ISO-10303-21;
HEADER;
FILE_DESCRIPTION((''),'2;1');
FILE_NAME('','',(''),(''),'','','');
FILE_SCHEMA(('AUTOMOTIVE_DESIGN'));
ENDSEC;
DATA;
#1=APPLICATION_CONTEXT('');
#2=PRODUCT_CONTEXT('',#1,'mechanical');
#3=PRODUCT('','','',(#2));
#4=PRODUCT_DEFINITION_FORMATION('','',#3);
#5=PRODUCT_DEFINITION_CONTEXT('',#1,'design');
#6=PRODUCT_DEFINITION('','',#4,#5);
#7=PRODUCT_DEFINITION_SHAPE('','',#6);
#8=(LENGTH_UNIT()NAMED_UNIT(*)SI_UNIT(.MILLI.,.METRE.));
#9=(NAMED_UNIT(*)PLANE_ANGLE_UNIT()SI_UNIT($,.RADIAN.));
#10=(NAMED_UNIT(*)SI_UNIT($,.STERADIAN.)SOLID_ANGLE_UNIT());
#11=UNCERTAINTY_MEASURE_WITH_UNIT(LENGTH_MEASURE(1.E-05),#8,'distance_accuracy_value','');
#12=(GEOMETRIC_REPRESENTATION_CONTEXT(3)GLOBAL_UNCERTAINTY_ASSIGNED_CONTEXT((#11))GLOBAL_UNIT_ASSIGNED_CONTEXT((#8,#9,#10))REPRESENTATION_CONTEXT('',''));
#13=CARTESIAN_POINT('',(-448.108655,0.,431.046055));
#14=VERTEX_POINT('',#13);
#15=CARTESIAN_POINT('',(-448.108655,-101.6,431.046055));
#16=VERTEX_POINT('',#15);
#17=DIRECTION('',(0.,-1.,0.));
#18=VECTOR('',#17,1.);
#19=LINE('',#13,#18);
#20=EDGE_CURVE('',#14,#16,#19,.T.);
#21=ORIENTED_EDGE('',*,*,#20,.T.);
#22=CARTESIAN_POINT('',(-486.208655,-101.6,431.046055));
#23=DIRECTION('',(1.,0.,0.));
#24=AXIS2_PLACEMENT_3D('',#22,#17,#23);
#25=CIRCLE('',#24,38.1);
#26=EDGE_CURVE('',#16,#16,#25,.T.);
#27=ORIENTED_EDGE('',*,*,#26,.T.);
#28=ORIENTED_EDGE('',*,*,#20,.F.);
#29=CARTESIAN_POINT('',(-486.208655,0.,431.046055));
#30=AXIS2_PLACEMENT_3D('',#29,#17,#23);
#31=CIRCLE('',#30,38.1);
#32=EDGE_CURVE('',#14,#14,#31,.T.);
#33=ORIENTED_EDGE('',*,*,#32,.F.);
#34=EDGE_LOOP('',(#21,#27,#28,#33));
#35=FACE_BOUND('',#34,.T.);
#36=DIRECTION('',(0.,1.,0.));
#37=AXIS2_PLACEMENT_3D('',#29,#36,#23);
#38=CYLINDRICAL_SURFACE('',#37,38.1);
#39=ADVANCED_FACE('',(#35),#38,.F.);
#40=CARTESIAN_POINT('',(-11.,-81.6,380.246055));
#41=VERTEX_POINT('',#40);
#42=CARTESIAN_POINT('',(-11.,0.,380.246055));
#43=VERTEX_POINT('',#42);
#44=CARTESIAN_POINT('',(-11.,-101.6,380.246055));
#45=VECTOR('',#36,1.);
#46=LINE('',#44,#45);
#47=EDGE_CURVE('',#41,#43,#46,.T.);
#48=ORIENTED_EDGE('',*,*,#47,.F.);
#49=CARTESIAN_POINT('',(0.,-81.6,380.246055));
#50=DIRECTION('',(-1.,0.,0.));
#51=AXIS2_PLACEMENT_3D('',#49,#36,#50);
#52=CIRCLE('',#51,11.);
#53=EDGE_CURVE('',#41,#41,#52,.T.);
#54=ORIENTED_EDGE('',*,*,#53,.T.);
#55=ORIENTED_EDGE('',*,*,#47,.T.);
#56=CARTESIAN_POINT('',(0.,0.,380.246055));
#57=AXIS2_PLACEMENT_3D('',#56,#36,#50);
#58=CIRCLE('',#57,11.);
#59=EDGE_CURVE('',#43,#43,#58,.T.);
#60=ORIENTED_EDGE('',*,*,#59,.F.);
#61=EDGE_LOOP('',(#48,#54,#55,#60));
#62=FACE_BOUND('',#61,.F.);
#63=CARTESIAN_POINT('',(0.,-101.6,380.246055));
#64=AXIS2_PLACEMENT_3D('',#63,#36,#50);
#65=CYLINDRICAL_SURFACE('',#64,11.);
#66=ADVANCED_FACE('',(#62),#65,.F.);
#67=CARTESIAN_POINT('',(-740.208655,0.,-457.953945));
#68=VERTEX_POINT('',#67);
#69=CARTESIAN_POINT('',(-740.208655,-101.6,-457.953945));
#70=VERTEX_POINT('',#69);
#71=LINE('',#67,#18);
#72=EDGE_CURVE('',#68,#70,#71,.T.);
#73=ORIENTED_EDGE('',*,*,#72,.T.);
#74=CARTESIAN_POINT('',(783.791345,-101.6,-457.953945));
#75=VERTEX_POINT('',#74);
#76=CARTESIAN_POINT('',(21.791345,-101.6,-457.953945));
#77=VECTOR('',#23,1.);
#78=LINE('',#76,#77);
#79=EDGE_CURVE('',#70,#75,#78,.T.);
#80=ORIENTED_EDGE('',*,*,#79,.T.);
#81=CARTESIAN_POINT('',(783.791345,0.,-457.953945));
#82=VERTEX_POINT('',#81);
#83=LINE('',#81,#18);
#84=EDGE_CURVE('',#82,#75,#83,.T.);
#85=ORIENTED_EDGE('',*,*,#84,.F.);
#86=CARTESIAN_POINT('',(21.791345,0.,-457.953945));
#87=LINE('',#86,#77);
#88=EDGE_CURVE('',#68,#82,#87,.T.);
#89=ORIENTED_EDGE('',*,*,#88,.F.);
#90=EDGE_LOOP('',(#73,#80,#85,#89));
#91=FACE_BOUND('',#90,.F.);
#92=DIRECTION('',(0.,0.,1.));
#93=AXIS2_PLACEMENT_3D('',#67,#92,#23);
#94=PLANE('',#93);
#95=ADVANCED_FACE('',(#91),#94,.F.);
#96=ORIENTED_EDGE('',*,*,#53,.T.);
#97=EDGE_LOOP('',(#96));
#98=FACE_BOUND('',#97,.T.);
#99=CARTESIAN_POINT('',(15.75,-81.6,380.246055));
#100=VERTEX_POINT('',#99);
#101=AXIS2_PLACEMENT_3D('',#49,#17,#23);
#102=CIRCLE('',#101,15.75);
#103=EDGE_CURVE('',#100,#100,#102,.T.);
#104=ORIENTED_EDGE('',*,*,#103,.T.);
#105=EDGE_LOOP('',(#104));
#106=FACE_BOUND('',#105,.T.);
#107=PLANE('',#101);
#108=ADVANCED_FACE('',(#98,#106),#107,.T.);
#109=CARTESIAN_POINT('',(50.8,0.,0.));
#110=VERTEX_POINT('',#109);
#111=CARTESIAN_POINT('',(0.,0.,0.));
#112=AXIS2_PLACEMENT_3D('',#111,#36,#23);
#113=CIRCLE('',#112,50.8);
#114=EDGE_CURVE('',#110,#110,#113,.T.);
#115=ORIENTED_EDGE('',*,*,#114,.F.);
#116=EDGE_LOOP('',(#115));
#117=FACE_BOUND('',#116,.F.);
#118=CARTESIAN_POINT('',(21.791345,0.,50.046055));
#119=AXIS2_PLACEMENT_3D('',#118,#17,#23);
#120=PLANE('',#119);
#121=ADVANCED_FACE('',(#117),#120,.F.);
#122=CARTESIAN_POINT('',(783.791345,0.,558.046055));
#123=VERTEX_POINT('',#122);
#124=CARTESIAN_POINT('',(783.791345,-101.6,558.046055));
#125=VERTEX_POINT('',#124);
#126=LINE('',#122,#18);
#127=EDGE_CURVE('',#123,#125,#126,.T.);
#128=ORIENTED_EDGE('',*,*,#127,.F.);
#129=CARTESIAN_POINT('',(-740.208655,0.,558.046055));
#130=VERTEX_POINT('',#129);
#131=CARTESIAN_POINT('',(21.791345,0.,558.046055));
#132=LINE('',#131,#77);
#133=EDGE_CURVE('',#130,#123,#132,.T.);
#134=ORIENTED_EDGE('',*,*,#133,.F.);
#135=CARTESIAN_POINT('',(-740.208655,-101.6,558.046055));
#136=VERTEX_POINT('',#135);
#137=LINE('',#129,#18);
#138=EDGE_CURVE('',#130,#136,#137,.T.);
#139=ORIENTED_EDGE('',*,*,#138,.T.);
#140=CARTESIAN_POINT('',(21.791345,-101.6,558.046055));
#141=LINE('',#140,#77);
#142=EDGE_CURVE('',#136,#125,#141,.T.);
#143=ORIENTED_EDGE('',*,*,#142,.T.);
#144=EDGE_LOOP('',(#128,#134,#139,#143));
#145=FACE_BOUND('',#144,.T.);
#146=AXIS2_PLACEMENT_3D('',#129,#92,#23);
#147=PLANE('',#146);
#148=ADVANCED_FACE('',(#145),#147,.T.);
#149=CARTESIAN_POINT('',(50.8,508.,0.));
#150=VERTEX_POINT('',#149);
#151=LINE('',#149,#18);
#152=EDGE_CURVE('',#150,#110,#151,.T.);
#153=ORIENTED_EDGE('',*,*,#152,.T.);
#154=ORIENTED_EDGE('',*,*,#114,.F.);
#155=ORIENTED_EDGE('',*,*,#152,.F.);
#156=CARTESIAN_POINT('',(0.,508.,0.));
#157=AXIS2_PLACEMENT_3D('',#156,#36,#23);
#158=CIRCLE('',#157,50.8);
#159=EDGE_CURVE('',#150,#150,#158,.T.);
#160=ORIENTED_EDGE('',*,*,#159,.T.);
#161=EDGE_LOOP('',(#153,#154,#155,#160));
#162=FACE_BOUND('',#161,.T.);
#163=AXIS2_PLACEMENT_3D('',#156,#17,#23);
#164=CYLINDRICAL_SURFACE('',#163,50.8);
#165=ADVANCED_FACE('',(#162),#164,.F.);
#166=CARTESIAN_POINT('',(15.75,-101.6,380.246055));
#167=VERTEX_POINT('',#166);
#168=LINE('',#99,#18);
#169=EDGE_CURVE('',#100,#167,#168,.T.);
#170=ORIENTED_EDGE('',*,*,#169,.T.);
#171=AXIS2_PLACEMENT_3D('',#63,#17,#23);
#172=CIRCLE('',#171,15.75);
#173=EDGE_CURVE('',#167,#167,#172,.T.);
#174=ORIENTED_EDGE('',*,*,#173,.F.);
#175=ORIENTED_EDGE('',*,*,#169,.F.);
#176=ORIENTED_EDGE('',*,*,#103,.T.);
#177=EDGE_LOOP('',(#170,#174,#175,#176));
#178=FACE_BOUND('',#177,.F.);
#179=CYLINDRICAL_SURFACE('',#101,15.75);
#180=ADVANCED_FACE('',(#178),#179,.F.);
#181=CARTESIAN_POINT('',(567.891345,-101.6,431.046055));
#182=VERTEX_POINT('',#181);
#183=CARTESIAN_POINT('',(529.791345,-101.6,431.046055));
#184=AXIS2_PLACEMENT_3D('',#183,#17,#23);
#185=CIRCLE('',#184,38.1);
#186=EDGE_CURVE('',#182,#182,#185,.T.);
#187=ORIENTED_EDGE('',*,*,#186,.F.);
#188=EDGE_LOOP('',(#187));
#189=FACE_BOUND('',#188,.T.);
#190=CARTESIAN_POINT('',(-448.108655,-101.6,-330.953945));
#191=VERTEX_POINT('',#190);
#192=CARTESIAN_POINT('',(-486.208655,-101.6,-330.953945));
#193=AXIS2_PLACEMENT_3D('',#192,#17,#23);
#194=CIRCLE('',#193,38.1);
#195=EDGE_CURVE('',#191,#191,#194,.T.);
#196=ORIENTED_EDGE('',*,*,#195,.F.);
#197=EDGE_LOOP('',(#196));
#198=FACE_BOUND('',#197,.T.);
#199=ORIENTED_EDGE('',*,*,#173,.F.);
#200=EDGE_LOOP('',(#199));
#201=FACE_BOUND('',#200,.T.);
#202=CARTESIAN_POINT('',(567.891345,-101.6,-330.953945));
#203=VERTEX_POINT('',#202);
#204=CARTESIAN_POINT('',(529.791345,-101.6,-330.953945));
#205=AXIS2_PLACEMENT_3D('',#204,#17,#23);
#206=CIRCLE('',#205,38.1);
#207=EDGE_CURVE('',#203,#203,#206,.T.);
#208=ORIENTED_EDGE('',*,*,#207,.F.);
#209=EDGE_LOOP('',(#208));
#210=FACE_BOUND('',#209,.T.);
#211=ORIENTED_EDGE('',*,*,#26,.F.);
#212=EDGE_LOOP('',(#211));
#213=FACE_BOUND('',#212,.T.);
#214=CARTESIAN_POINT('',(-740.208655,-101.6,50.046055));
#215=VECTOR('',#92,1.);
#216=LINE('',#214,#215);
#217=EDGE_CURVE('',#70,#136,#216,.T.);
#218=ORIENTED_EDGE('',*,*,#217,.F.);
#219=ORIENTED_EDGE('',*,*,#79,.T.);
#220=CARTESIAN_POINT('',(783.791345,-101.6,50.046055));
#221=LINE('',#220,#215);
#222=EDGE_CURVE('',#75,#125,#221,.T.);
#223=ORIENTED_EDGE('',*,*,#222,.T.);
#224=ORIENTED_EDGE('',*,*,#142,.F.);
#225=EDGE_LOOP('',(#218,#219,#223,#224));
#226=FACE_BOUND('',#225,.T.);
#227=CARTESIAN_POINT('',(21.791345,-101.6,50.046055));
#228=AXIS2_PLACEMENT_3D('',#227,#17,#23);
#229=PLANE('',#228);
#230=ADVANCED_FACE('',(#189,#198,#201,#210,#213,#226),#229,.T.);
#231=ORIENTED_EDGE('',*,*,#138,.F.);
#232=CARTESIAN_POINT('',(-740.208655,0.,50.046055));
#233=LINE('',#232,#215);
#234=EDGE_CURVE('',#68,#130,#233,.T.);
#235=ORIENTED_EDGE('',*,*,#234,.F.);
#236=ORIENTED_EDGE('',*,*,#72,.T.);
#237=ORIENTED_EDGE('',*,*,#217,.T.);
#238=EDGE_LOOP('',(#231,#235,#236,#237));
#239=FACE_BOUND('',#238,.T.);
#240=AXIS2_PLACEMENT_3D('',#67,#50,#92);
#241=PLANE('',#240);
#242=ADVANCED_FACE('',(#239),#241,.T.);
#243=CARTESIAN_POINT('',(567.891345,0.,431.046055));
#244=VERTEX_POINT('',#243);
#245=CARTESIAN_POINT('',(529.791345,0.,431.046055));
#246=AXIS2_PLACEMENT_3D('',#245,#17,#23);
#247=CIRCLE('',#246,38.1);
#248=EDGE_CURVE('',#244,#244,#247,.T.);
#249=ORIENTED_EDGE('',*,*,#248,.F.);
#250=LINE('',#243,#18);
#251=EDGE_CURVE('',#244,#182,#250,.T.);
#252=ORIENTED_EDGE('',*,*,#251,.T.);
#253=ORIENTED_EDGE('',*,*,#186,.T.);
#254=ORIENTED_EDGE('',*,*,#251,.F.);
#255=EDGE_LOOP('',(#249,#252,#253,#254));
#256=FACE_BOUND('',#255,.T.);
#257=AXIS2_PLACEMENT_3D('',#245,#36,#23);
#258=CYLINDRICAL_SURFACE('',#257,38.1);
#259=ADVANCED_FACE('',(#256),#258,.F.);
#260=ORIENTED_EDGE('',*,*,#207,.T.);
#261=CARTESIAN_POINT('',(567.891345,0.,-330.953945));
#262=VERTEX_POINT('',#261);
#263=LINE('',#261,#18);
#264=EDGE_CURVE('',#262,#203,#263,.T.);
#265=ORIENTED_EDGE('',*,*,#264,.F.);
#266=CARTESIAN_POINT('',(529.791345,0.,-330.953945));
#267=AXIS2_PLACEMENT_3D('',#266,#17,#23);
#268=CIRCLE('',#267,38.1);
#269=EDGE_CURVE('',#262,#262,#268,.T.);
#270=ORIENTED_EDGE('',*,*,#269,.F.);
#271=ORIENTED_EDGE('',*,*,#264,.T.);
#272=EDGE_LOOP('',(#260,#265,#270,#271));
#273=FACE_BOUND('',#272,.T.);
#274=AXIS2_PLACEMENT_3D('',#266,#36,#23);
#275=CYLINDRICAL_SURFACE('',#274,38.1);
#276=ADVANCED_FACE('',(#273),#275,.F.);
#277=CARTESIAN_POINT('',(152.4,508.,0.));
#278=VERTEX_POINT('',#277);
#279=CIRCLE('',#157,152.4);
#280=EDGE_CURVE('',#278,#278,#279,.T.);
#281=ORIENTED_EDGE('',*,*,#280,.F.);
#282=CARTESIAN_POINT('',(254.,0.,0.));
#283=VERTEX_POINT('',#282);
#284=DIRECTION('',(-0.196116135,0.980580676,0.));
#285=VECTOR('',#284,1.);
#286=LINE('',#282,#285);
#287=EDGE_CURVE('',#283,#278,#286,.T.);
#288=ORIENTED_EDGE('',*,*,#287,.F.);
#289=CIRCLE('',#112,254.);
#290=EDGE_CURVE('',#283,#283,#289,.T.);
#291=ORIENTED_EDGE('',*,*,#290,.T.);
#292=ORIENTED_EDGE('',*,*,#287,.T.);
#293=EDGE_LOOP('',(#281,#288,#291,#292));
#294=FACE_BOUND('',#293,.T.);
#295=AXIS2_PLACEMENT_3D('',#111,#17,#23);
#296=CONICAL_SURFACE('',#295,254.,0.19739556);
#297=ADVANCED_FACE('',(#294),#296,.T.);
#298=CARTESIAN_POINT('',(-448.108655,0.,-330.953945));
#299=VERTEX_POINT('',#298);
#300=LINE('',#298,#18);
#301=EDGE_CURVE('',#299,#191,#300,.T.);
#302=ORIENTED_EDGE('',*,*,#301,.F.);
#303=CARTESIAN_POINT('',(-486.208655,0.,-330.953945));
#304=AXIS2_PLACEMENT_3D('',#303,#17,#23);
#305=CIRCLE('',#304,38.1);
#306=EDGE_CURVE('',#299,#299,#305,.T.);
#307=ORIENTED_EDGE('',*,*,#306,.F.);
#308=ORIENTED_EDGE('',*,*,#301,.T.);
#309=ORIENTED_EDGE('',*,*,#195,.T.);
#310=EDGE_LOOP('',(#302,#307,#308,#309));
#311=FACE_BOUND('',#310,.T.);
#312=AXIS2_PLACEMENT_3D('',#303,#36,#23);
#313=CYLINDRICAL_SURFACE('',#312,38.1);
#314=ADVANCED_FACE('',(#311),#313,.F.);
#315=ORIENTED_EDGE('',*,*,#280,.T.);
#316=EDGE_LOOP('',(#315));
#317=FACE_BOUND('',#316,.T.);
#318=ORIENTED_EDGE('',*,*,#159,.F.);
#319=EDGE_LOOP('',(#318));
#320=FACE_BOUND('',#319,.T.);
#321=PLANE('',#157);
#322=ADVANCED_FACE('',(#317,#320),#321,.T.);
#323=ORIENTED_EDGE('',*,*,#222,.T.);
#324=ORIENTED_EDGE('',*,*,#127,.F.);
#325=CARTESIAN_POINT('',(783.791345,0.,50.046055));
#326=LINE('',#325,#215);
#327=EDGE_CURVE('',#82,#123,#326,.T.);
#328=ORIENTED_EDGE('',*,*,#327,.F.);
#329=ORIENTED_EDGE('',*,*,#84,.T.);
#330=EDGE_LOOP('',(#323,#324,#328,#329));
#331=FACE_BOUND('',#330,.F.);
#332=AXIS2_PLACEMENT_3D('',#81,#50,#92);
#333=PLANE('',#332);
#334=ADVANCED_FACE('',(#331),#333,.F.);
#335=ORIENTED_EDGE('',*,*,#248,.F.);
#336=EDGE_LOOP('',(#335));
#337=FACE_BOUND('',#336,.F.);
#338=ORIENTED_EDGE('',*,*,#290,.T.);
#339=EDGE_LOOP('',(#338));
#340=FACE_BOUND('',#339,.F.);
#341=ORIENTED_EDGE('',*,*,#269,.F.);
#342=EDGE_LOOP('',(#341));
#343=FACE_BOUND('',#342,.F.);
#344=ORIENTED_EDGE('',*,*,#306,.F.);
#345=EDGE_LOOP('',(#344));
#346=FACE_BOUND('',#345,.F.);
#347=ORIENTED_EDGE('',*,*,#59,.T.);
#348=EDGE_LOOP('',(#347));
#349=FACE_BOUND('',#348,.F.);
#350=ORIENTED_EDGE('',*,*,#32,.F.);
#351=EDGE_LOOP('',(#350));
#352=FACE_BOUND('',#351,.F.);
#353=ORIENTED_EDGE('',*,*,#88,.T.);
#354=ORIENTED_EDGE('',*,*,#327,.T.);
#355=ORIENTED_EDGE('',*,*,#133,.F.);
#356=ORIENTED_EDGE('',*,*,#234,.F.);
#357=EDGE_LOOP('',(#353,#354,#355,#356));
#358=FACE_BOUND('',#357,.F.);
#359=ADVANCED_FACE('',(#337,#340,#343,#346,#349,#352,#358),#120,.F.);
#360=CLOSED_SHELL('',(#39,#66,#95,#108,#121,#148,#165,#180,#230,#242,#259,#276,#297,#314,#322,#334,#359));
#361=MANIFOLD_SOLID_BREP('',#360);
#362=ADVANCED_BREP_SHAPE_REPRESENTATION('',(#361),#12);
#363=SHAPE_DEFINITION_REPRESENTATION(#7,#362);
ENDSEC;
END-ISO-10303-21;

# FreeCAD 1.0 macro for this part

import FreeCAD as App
import Part
import Sketcher
from FreeCAD import Vector
Q = App.Units.Quantity

doc = App.newDocument("Part")
body = doc.addObject("PartDesign::Body", "Body")

# Sketch on XZ plane
sketch1 = doc.addObject("Sketcher::SketchObject", "Sketch")
body.addObject(sketch1)
sketch1.AttachmentSupport = (doc.XZ_Plane, [""])
sketch1.MapMode = "FlatFace"
sketch1.addGeometry([
    Part.LineSegment(Vector(-740, 558, 0), Vector(-740, -458, 0)),  # 0
    Part.LineSegment(Vector(-740, -458, 0), Vector(784, -458, 0)),  # 1
    Part.LineSegment(Vector(784, -458, 0), Vector(784, 558, 0)),  # 2
    Part.LineSegment(Vector(784, 558, 0), Vector(-740, 558, 0)),  # 3
    Part.Circle(Vector(-486, -331, 0), Vector(0, 0, 1), 38),  # 4
    Part.Circle(Vector(530, -331, 0), Vector(0, 0, 1), 38),  # 5
    Part.Circle(Vector(-486, 431, 0), Vector(0, 0, 1), 38),  # 6
    Part.Circle(Vector(530, 431, 0), Vector(0, 0, 1), 38),  # 7
], False)
sketch1.addConstraint([
    Sketcher.Constraint("Coincident", 0, 2, 1, 1),
    Sketcher.Constraint("Coincident", 1, 2, 2, 1),
    Sketcher.Constraint("Coincident", 2, 2, 3, 1),
    Sketcher.Constraint("Coincident", 3, 2, 0, 1),
    Sketcher.Constraint("Vertical", 0),
    Sketcher.Constraint("Horizontal", 1),
    Sketcher.Constraint("Vertical", 2),
    Sketcher.Constraint("Horizontal", 3),
    Sketcher.Constraint("Equal", 4, 5),
    Sketcher.Constraint("Equal", 5, 6),
    Sketcher.Constraint("Equal", 6, 7),
    Sketcher.Constraint("Horizontal", 4, 3, 5, 3),
    Sketcher.Constraint("Horizontal", 6, 3, 7, 3),
    Sketcher.Constraint("Vertical", 4, 3, 6, 3),
    Sketcher.Constraint("Vertical", 5, 3, 7, 3),
    Sketcher.Constraint("Diameter", 4, Q("3 in")),
    Sketcher.Constraint("DistanceX", 1, 1, 1, 2, Q("60 in")),
    Sketcher.Constraint("DistanceY", 0, 2, 0, 1, Q("40 in")),
    Sketcher.Constraint("DistanceX", 4, 3, 5, 3, Q("40 in")),
    Sketcher.Constraint("DistanceY", 4, 3, 6, 3, Q("30 in")),
    Sketcher.Constraint("DistanceX", 0, 2, 4, 3, Q("10 in")),
    Sketcher.Constraint("DistanceY", 0, 2, 4, 3, Q("5 in")),
    Sketcher.Constraint("DistanceX", 4, 3, -1, 1, 486.208655),
    Sketcher.Constraint("DistanceY", 4, 3, -1, 1, 330.953945),
])
pad1 = doc.addObject("PartDesign::Pad", "Pad")
body.addObject(pad1)
pad1.Profile = sketch1
pad1.Length = Q("4 in")

# Sketch on XY plane
sketch2 = doc.addObject("Sketcher::SketchObject", "Sketch001")
body.addObject(sketch2)
sketch2.AttachmentSupport = (doc.XY_Plane, [""])
sketch2.MapMode = "FlatFace"
sketch2.addGeometry([
    Part.LineSegment(Vector(51, 508, 0), Vector(51, 0, 0)),
    Part.LineSegment(Vector(51, 0, 0), Vector(254, 0, 0)),
    Part.LineSegment(Vector(254, 0, 0), Vector(152, 508, 0)),
    Part.LineSegment(Vector(152, 508, 0), Vector(51, 508, 0)),
], False)
sketch2.addConstraint([
    Sketcher.Constraint("Coincident", 0, 2, 1, 1),
    Sketcher.Constraint("Coincident", 1, 2, 2, 1),
    Sketcher.Constraint("Coincident", 2, 2, 3, 1),
    Sketcher.Constraint("Coincident", 3, 2, 0, 1),
    Sketcher.Constraint("Vertical", 0),
    Sketcher.Constraint("Horizontal", 1),
    Sketcher.Constraint("Horizontal", 3),
    Sketcher.Constraint("PointOnObject", 0, 2, -1),
    Sketcher.Constraint("DistanceX", 1, 1, 1, 2, Q("8 in")),
    Sketcher.Constraint("DistanceX", 3, 2, 3, 1, Q("4 in")),
    Sketcher.Constraint("DistanceY", 0, 2, 0, 1, Q("20 in")),
    Sketcher.Constraint("DistanceX", -1, 1, 0, 2, Q("2 in")),
])
revolution = doc.addObject("PartDesign::Revolution", "Revolution")
body.addObject(revolution)
revolution.Profile = sketch2
revolution.ReferenceAxis = (sketch2, ["V_Axis"])
revolution.Angle = 360

# Sketch on XZ plane
sketch3 = doc.addObject("Sketcher::SketchObject", "Sketch002")
body.addObject(sketch3)
sketch3.AttachmentSupport = (doc.XZ_Plane, [""])
sketch3.MapMode = "FlatFace"
sketch3.AttachmentOffset = App.Placement(Vector(0, 0, 4 * 25.4), App.Rotation())
sketch3.addGeometry(Part.Circle(Vector(0, 380, 0), Vector(0, 0, 1), 11), False)
sketch3.addConstraint([
    Sketcher.Constraint("PointOnObject", 0, 3, -2),
    Sketcher.Constraint("Diameter", 0, 22.0),
    Sketcher.Constraint("DistanceY", -1, 1, 0, 3, 380.246055),
])
doc.recompute()
hole = doc.addObject("PartDesign::Hole", "Hole")
body.addObject(hole)
hole.Profile = sketch3
hole.ThreadType = "None"
hole.Diameter = 22
hole.DepthType = "ThroughAll"
hole.HoleCutType = "Counterbore"
hole.HoleCutDiameter = 31.5
hole.HoleCutDepth = 20

doc.recompute()
